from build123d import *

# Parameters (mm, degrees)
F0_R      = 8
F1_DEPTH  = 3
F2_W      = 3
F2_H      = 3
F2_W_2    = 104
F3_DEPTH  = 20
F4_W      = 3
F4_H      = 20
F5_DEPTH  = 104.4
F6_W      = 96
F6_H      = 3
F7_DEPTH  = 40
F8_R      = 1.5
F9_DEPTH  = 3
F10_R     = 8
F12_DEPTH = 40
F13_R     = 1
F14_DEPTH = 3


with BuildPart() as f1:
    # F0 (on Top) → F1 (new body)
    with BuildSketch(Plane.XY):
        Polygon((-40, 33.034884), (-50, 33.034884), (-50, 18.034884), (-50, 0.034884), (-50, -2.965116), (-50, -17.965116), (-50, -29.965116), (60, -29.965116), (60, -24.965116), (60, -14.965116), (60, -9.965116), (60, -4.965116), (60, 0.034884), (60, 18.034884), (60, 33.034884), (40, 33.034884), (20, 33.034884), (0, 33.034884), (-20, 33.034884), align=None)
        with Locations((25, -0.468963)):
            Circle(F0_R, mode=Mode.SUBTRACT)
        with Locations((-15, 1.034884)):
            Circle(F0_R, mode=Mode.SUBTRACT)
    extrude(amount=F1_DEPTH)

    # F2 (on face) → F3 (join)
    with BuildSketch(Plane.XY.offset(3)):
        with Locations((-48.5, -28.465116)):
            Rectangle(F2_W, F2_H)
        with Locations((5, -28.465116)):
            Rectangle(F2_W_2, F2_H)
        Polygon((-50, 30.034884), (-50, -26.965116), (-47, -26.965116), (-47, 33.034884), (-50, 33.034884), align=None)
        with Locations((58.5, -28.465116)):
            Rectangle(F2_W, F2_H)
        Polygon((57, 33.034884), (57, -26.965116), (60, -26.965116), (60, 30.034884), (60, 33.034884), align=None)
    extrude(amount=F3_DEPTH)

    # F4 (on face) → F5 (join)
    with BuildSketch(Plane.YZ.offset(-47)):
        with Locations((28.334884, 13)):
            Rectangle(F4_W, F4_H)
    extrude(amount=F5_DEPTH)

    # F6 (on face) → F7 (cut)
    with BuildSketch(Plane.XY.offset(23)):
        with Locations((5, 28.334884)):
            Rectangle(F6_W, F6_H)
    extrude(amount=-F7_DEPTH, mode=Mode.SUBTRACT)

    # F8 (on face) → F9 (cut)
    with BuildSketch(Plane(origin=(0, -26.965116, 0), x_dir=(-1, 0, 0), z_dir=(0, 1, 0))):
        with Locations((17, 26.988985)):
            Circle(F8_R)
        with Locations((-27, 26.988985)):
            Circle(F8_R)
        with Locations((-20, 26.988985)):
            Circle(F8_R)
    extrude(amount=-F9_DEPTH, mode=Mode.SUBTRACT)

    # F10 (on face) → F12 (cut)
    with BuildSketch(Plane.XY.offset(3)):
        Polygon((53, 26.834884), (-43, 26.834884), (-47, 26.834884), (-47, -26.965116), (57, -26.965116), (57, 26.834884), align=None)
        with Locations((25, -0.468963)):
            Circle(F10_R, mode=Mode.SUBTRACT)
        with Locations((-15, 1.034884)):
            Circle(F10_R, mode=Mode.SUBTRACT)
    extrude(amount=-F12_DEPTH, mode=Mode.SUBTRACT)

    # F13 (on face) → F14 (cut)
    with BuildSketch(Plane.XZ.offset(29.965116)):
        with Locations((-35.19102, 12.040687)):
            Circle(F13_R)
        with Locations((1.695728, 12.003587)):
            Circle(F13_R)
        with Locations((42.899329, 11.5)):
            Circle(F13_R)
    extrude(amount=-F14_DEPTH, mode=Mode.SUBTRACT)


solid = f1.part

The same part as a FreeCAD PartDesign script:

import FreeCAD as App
import Part
import Sketcher

V = App.Vector


def add_polygon(sketch, points):
    """Adds a closed chain of lines whose ends are joined by coincident constraints."""
    first, n = sketch.GeometryCount, len(points)
    for a, b in zip(points, points[1:] + points[:1]):
        sketch.addGeometry(Part.LineSegment(App.Vector(*a, 0), App.Vector(*b, 0)), False)
    for i in range(n):
        sketch.addConstraint(Sketcher.Constraint("Coincident", first + i, 2, first + (i + 1) % n, 1))

doc = App.newDocument("Part")
body = doc.addObject("PartDesign::Body", "Body")

sketch1 = body.newObject("Sketcher::SketchObject", "Sketch")
sketch1.AttachmentSupport = (doc.getObject("XY_Plane"), [""])
sketch1.MapMode = "FlatFace"
add_polygon(sketch1, [(-50, 33.034884), (-50, -29.965116), (60, -29.965116), (60, 33.034884)])
sketch1.addGeometry(Part.Circle(V(25, -0.468963, 0), V(0, 0, 1), 8), False)
sketch1.addGeometry(Part.Circle(V(-15, 1.034884, 0), V(0, 0, 1), 8), False)
sketch1.addConstraint([
    Sketcher.Constraint("Vertical", 0),
    Sketcher.Constraint("Horizontal", 1),
    Sketcher.Constraint("Vertical", 2),
    Sketcher.Constraint("Horizontal", 3),
    Sketcher.Constraint("Equal", 4, 5),
    Sketcher.Constraint("Diameter", 4, 16.0),
    Sketcher.Constraint("DistanceX", 1, 1, 1, 2, 110.0),
    Sketcher.Constraint("DistanceY", 0, 2, 0, 1, 63.0),
    Sketcher.Constraint("DistanceX", -1, 1, 4, 3, 25.0),
    Sketcher.Constraint("DistanceX", 5, 3, -1, 1, 15.0),
    Sketcher.Constraint("DistanceX", 0, 2, -1, 1, 50.0),
    Sketcher.Constraint("DistanceY", 0, 2, 5, 3, 31.0),
    Sketcher.Constraint("DistanceY", 4, 3, -1, 1, 0.468963),
    Sketcher.Constraint("DistanceY", -1, 1, 5, 3, 1.034884),
])
pad1 = body.newObject("PartDesign::Pad", "Pad")
pad1.Profile = sketch1
pad1.Length = 3

sketch2 = body.newObject("Sketcher::SketchObject", "Sketch001")
sketch2.AttachmentSupport = (doc.getObject("XY_Plane"), [""])
sketch2.MapMode = "FlatFace"
sketch2.AttachmentOffset = App.Placement(V(0, 0, 3), App.Rotation())
add_polygon(sketch2, [(-50, -29.965116), (60, -29.965116), (60, 33.034884), (57, 33.034884), (57, -26.965116), (-47, -26.965116), (-47, 33.034884), (-50, 33.034884)])
sketch2.addConstraint([
    Sketcher.Constraint("Horizontal", 0),
    Sketcher.Constraint("Vertical", 1),
    Sketcher.Constraint("Horizontal", 2),
    Sketcher.Constraint("Vertical", 3),
    Sketcher.Constraint("Horizontal", 4),
    Sketcher.Constraint("Vertical", 5),
    Sketcher.Constraint("Horizontal", 6),
    Sketcher.Constraint("Vertical", 7),
    Sketcher.Constraint("Horizontal", 2, 2, 5, 2),
    Sketcher.Constraint("Equal", 2, 6),
    Sketcher.Constraint("DistanceX", 0, 1, 0, 2, 110.0),
    Sketcher.Constraint("DistanceX", 2, 2, 2, 1, 3.0),
    Sketcher.Constraint("DistanceY", 1, 1, 1, 2, 63.0),
    Sketcher.Constraint("DistanceY", 3, 2, 3, 1, 60.0),
    Sketcher.Constraint("DistanceX", -1, 1, 0, 2, 60.0),
    Sketcher.Constraint("DistanceY", 0, 2, -1, 1, 29.965116),
])
pad2 = body.newObject("PartDesign::Pad", "Pad001")
pad2.Profile = sketch2
pad2.Length = 20

sketch3 = body.newObject("Sketcher::SketchObject", "Sketch002")
sketch3.AttachmentSupport = (doc.getObject("YZ_Plane"), [""])
sketch3.MapMode = "FlatFace"
sketch3.AttachmentOffset = App.Placement(V(0, 0, -47), App.Rotation())
add_polygon(sketch3, [(26.834884, 23), (26.834884, 3), (29.834884, 3), (29.834884, 23)])
sketch3.addConstraint([
    Sketcher.Constraint("Vertical", 0),
    Sketcher.Constraint("Horizontal", 1),
    Sketcher.Constraint("Vertical", 2),
    Sketcher.Constraint("Horizontal", 3),
    Sketcher.Constraint("DistanceX", 1, 1, 1, 2, 3.0),
    Sketcher.Constraint("DistanceY", 0, 2, 0, 1, 20.0),
    Sketcher.Constraint("DistanceY", -1, 1, 0, 2, 3.0),
    Sketcher.Constraint("DistanceX", -1, 1, 0, 2, 26.834884),
])
pad3 = body.newObject("PartDesign::Pad", "Pad002")
pad3.Profile = sketch3
pad3.Length = 104.4

sketch4 = body.newObject("Sketcher::SketchObject", "Sketch003")
sketch4.AttachmentSupport = (doc.getObject("XY_Plane"), [""])
sketch4.MapMode = "FlatFace"
sketch4.AttachmentOffset = App.Placement(V(0, 0, 23), App.Rotation())
add_polygon(sketch4, [(-43, 29.834884), (-43, 26.834884), (53, 26.834884), (53, 29.834884)])
sketch4.addConstraint([
    Sketcher.Constraint("Vertical", 0),
    Sketcher.Constraint("Horizontal", 1),
    Sketcher.Constraint("Vertical", 2),
    Sketcher.Constraint("Horizontal", 3),
    Sketcher.Constraint("DistanceX", 1, 1, 1, 2, 96.0),
    Sketcher.Constraint("DistanceY", 0, 2, 0, 1, 3.0),
    Sketcher.Constraint("DistanceX", 0, 2, -1, 1, 43.0),
    Sketcher.Constraint("DistanceY", -1, 1, 0, 2, 26.834884),
])
pocket1 = body.newObject("PartDesign::Pocket", "Pocket")
pocket1.Profile = sketch4
pocket1.Length = 40

sketch5 = body.newObject("Sketcher::SketchObject", "Sketch004")
sketch5.AttachmentSupport = (doc.getObject("XZ_Plane"), [""])
sketch5.MapMode = "FlatFace"
sketch5.AttachmentOffset = App.Placement(V(0, 0, 26.965116), App.Rotation())
sketch5.addGeometry([
    Part.Circle(V(-17, 26.988985, 0), V(0, 0, 1), 1.5),
    Part.Circle(V(27, 26.988985, 0), V(0, 0, 1), 1.5),
    Part.Circle(V(20, 26.988985, 0), V(0, 0, 1), 1.5),
], False)
sketch5.addConstraint([
    Sketcher.Constraint("Equal", 0, 1),
    Sketcher.Constraint("Equal", 1, 2),
    Sketcher.Constraint("Horizontal", 0, 3, 1, 3),
    Sketcher.Constraint("Horizontal", 1, 3, 2, 3),
    Sketcher.Constraint("Diameter", 0, 3.0),
    Sketcher.Constraint("DistanceX", 0, 3, -1, 1, 17.0),
    Sketcher.Constraint("DistanceX", -1, 1, 1, 3, 27.0),
    Sketcher.Constraint("DistanceX", -1, 1, 2, 3, 20.0),
    Sketcher.Constraint("DistanceY", -1, 1, 0, 3, 26.988985),
])
pocket2 = body.newObject("PartDesign::Pocket", "Pocket001")
pocket2.Profile = sketch5
pocket2.Length = 3
pocket2.Reversed = True

sketch6 = body.newObject("Sketcher::SketchObject", "Sketch005")
sketch6.AttachmentSupport = (doc.getObject("XY_Plane"), [""])
sketch6.MapMode = "FlatFace"
sketch6.AttachmentOffset = App.Placement(V(0, 0, 3), App.Rotation())
add_polygon(sketch6, [(-47, 26.834884), (-47, -26.965116), (57, -26.965116), (57, 26.834884)])
sketch6.addGeometry(Part.Circle(V(25, -0.468963, 0), V(0, 0, 1), 8), False)
sketch6.addGeometry(Part.Circle(V(-15, 1.034884, 0), V(0, 0, 1), 8), False)
sketch6.addConstraint([
    Sketcher.Constraint("Vertical", 0),
    Sketcher.Constraint("Horizontal", 1),
    Sketcher.Constraint("Vertical", 2),
    Sketcher.Constraint("Horizontal", 3),
    Sketcher.Constraint("Equal", 4, 5),
    Sketcher.Constraint("Diameter", 4, 16.0),
    Sketcher.Constraint("DistanceX", 1, 1, 1, 2, 104.0),
    Sketcher.Constraint("DistanceY", 0, 2, 0, 1, 53.8),
    Sketcher.Constraint("DistanceX", -1, 1, 4, 3, 25.0),
    Sketcher.Constraint("DistanceX", 5, 3, -1, 1, 15.0),
    Sketcher.Constraint("DistanceX", 0, 2, -1, 1, 47.0),
    Sketcher.Constraint("DistanceY", 0, 2, 5, 3, 28.0),
    Sketcher.Constraint("DistanceY", 4, 3, -1, 1, 0.468963),
    Sketcher.Constraint("DistanceY", -1, 1, 5, 3, 1.034884),
])
pocket3 = body.newObject("PartDesign::Pocket", "Pocket002")
pocket3.Profile = sketch6
pocket3.Length = 40

sketch7 = body.newObject("Sketcher::SketchObject", "Sketch006")
sketch7.AttachmentSupport = (doc.getObject("XZ_Plane"), [""])
sketch7.MapMode = "FlatFace"
sketch7.AttachmentOffset = App.Placement(V(0, 0, 29.965116), App.Rotation())
sketch7.addGeometry([
    Part.Circle(V(-35.19102, 12.040687, 0), V(0, 0, 1), 1),
    Part.Circle(V(1.695728, 12.003587, 0), V(0, 0, 1), 1),
    Part.Circle(V(42.899329, 11.5, 0), V(0, 0, 1), 1),
], False)
sketch7.addConstraint([
    Sketcher.Constraint("Equal", 0, 1),
    Sketcher.Constraint("Equal", 1, 2),
    Sketcher.Constraint("Diameter", 0, 2.0),
    Sketcher.Constraint("DistanceY", -1, 1, 2, 3, 11.5),
    Sketcher.Constraint("DistanceY", 1, 3, 0, 3, 0.0371),
    Sketcher.Constraint("DistanceX", 1, 3, 2, 3, 41.203601),
    Sketcher.Constraint("DistanceX", 0, 3, -1, 1, 35.19102),
    Sketcher.Constraint("DistanceX", -1, 1, 2, 3, 42.899329),
    Sketcher.Constraint("DistanceY", -1, 1, 0, 3, 12.040687),
])
pocket4 = body.newObject("PartDesign::Pocket", "Pocket003")
pocket4.Profile = sketch7
pocket4.Length = 3

doc.recompute()
